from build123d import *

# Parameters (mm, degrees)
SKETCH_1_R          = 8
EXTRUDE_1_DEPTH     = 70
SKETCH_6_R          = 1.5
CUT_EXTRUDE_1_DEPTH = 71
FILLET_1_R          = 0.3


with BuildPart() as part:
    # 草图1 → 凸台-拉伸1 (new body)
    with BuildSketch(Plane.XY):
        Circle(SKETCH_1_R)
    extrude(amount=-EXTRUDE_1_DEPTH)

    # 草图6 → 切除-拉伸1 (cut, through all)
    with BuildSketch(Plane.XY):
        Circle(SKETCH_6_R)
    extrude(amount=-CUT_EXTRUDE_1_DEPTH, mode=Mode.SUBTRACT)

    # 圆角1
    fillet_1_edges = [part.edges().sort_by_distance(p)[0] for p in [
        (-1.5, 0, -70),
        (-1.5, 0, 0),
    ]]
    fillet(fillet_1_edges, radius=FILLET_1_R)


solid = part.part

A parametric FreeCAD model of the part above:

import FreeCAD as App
import Part
import Sketcher
from FreeCAD import Vector
Q = App.Units.Quantity


def edges_at(feature, points):
    """Names of the edges that pass closest to the given points."""
    edges = feature.Shape.Edges
    near = lambda p: min(range(len(edges)), key=lambda i: edges[i].distToShape(Part.Vertex(*p))[0])
    return sorted({f"Edge{near(p) + 1}" for p in points})

doc = App.newDocument("Part")
params = doc.addObject("Spreadsheet::Sheet", "Params")
for row, (alias, value) in enumerate([
    ("sketch1_diameter", "16 mm"),
    ("pad1_length", "70 mm"),
    ("sketch2_diameter", "3 mm"),
    ("fillet_radius", "0.3 mm"),
], start=1):
    params.set(f"A{row}", alias)
    params.set(f"B{row}", "=" + value)
    params.setAlias(f"B{row}", alias)

body = doc.addObject("PartDesign::Body", "Body")

# Sketch on XY plane
sketch1 = body.newObject("Sketcher::SketchObject", "Sketch")
sketch1.AttachmentSupport = (doc.getObject("XY_Plane"), [""])
sketch1.MapMode = "FlatFace"
sketch1.addGeometry(Part.Circle(Vector(0, 0, 0), Vector(0, 0, 1), 8), False)
sketch1.addConstraint([
    Sketcher.Constraint("Coincident", 0, 3, -1, 1),
    Sketcher.Constraint("Diameter", 0, Q("16 mm")),
])
sketch1.setExpression("Constraints[1]", "Params.sketch1_diameter")
pad1 = body.newObject("PartDesign::Pad", "Pad")
pad1.Profile = sketch1
pad1.setExpression("Length", "Params.pad1_length")
pad1.Reversed = True

# Sketch on XY plane
sketch2 = body.newObject("Sketcher::SketchObject", "Sketch001")
sketch2.AttachmentSupport = (doc.getObject("XY_Plane"), [""])
sketch2.MapMode = "FlatFace"
sketch2.addGeometry(Part.Circle(Vector(0, 0, 0), Vector(0, 0, 1), 1.5), False)
sketch2.addConstraint([
    Sketcher.Constraint("Coincident", 0, 3, -1, 1),
    Sketcher.Constraint("Diameter", 0, Q("3 mm")),
])
sketch2.setExpression("Constraints[1]", "Params.sketch2_diameter")
pocket1 = body.newObject("PartDesign::Pocket", "Pocket")
pocket1.Profile = sketch2
pocket1.Type = "ThroughAll"
doc.recompute()

fillet = body.newObject("PartDesign::Fillet", "Fillet")
fillet.Base = (pocket1, edges_at(pocket1, [(-1.5, 0, -70), (-1.5, 0, 0)]))
fillet.setExpression("Radius", "Params.fillet_radius")

doc.recompute()
